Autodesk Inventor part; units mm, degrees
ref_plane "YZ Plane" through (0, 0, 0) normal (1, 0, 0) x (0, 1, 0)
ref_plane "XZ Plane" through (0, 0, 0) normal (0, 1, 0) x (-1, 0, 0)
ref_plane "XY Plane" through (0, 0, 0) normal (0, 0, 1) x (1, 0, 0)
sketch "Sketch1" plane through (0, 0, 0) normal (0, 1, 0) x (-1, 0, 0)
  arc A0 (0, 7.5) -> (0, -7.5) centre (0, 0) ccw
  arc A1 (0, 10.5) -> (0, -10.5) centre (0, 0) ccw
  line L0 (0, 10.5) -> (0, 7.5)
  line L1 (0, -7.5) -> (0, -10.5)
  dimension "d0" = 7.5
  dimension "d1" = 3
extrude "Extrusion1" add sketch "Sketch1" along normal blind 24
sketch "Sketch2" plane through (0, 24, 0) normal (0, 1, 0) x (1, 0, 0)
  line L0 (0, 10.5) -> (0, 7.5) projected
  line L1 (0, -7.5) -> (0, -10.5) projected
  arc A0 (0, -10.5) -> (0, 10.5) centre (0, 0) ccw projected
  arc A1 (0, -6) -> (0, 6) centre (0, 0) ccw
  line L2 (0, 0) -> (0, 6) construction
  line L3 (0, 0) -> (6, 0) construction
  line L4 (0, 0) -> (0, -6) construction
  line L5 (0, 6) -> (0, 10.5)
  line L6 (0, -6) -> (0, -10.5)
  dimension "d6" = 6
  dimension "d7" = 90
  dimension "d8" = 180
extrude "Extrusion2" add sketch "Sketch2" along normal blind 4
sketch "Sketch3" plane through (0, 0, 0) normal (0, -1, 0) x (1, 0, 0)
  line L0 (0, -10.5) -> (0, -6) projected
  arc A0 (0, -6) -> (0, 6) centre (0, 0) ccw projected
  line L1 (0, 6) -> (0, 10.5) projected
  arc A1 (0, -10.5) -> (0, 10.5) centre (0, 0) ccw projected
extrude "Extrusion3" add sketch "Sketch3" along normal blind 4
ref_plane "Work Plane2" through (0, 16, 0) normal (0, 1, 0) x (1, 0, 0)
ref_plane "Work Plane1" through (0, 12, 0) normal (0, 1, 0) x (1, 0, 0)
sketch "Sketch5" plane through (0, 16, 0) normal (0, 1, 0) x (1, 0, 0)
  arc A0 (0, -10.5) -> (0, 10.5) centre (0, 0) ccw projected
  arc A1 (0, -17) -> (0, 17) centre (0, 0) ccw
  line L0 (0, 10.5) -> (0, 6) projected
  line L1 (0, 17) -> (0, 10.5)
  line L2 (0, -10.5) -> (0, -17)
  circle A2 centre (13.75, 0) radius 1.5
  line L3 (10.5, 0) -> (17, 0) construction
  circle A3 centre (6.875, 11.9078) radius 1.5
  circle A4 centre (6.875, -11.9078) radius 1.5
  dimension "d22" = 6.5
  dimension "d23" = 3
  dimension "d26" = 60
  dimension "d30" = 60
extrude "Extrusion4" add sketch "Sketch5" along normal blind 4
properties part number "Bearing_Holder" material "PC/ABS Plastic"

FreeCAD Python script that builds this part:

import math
import FreeCAD as App
import Part
import Sketcher

V = App.Vector
Q = App.Units.Quantity

doc = App.newDocument("Part")
body = doc.addObject("PartDesign::Body", "Body")

# Sketch on XZ plane
sketch1 = body.newObject("Sketcher::SketchObject", "Sketch")
sketch1.AttachmentSupport = (doc.getObject("XZ_Plane"), [""])
sketch1.MapMode = "FlatFace"
sketch1.addGeometry(Part.ArcOfCircle(Part.Circle(V(0, 0, 0), V(0, 0, 1), 7.5), math.radians(-90), math.radians(90)), False)
sketch1.addGeometry(Part.LineSegment(V(0, 7.5, 0), V(0, 10.5, 0)), False)
sketch1.addGeometry(Part.ArcOfCircle(Part.Circle(V(0, 0, 0), V(0, 0, 1), 10.5), math.radians(-90), math.radians(90)), False)
sketch1.addGeometry(Part.LineSegment(V(0, -10.5, 0), V(0, -7.5, 0)), False)
sketch1.addConstraint(Sketcher.Constraint("Coincident", 0, 2, 1, 1))
sketch1.addConstraint(Sketcher.Constraint("Coincident", 1, 2, 2, 2))
sketch1.addConstraint(Sketcher.Constraint("Coincident", 2, 1, 3, 1))
sketch1.addConstraint(Sketcher.Constraint("Coincident", 3, 2, 0, 1))
sketch1.addConstraint(Sketcher.Constraint("Vertical", 1))
sketch1.addConstraint(Sketcher.Constraint("Vertical", 3))
sketch1.addConstraint(Sketcher.Constraint("Coincident", 0, 3, -1, 1))
sketch1.addConstraint(Sketcher.Constraint("Coincident", 2, 3, -1, 1))
sketch1.addConstraint(Sketcher.Constraint("PointOnObject", 0, 2, -2))
sketch1.addConstraint(Sketcher.Constraint("PointOnObject", 2, 1, -2))
sketch1.addConstraint(Sketcher.Constraint("Radius", 0, Q("7.5 mm")))
sketch1.addConstraint(Sketcher.Constraint("DistanceY", 1, 1, 1, 2, Q("3 mm")))
pad1 = body.newObject("PartDesign::Pad", "Pad")
pad1.Profile = sketch1
pad1.Length = 24
pad1.Reversed = True

# Sketch on XZ plane
sketch2 = body.newObject("Sketcher::SketchObject", "Sketch001")
sketch2.AttachmentSupport = (doc.getObject("XZ_Plane"), [""])
sketch2.MapMode = "FlatFace"
sketch2.AttachmentOffset = App.Placement(V(0, 0, -24), App.Rotation())
sketch2.addGeometry(Part.ArcOfCircle(Part.Circle(V(0, 0, 0), V(0, 0, 1), 10.5), math.radians(-90), math.radians(90)), False)
sketch2.addGeometry(Part.LineSegment(V(0, -10.5, 0), V(0, -6, 0)), False)
sketch2.addGeometry(Part.ArcOfCircle(Part.Circle(V(0, 0, 0), V(0, 0, 1), 6), math.radians(-90), math.radians(90)), False)
sketch2.addGeometry(Part.LineSegment(V(0, 6, 0), V(0, 10.5, 0)), False)
sketch2.addConstraint(Sketcher.Constraint("Coincident", 0, 1, 1, 1))
sketch2.addConstraint(Sketcher.Constraint("Coincident", 1, 2, 2, 1))
sketch2.addConstraint(Sketcher.Constraint("Coincident", 2, 2, 3, 1))
sketch2.addConstraint(Sketcher.Constraint("Coincident", 3, 2, 0, 2))
sketch2.addConstraint(Sketcher.Constraint("Vertical", 1))
sketch2.addConstraint(Sketcher.Constraint("Vertical", 3))
sketch2.addConstraint(Sketcher.Constraint("Coincident", 0, 3, -1, 1))
sketch2.addConstraint(Sketcher.Constraint("Coincident", 2, 3, -1, 1))
sketch2.addConstraint(Sketcher.Constraint("PointOnObject", 0, 1, -2))
sketch2.addConstraint(Sketcher.Constraint("PointOnObject", 2, 2, -2))
sketch2.addConstraint(Sketcher.Constraint("Radius", 2, Q("6 mm")))
sketch2.addConstraint(Sketcher.Constraint("Radius", 0, Q("10.5 mm")))
pad2 = body.newObject("PartDesign::Pad", "Pad001")
pad2.Profile = sketch2
pad2.Length = 4
pad2.Reversed = True

# Sketch on XZ plane
sketch3 = body.newObject("Sketcher::SketchObject", "Sketch002")
sketch3.AttachmentSupport = (doc.getObject("XZ_Plane"), [""])
sketch3.MapMode = "FlatFace"
sketch3.addGeometry(Part.LineSegment(V(0, -6, 0), V(0, -10.5, 0)), False)
sketch3.addGeometry(Part.ArcOfCircle(Part.Circle(V(0, 0, 0), V(0, 0, 1), 10.5), math.radians(-90), math.radians(90)), False)
sketch3.addGeometry(Part.LineSegment(V(0, 10.5, 0), V(0, 6, 0)), False)
sketch3.addGeometry(Part.ArcOfCircle(Part.Circle(V(0, 0, 0), V(0, 0, 1), 6), math.radians(-90), math.radians(90)), False)
sketch3.addConstraint(Sketcher.Constraint("Coincident", 0, 2, 1, 1))
sketch3.addConstraint(Sketcher.Constraint("Coincident", 1, 2, 2, 1))
sketch3.addConstraint(Sketcher.Constraint("Coincident", 2, 2, 3, 2))
sketch3.addConstraint(Sketcher.Constraint("Coincident", 3, 1, 0, 1))
sketch3.addConstraint(Sketcher.Constraint("Vertical", 0))
sketch3.addConstraint(Sketcher.Constraint("Vertical", 2))
sketch3.addConstraint(Sketcher.Constraint("Coincident", 1, 3, -1, 1))
sketch3.addConstraint(Sketcher.Constraint("Coincident", 3, 3, -1, 1))
sketch3.addConstraint(Sketcher.Constraint("PointOnObject", 0, 2, -2))
sketch3.addConstraint(Sketcher.Constraint("PointOnObject", 1, 2, -2))
sketch3.addConstraint(Sketcher.Constraint("Radius", 3, Q("6 mm")))
sketch3.addConstraint(Sketcher.Constraint("Radius", 1, Q("10.5 mm")))
pad3 = body.newObject("PartDesign::Pad", "Pad002")
pad3.Profile = sketch3
pad3.Length = 4

# Sketch on XZ plane
sketch4 = body.newObject("Sketcher::SketchObject", "Sketch003")
sketch4.AttachmentSupport = (doc.getObject("XZ_Plane"), [""])
sketch4.MapMode = "FlatFace"
sketch4.AttachmentOffset = App.Placement(V(0, 0, -16), App.Rotation())
sketch4.addGeometry(Part.ArcOfCircle(Part.Circle(V(0, 0, 0), V(0, 0, 1), 10.5), math.radians(-90), math.radians(90)), False)
sketch4.addGeometry(Part.LineSegment(V(0, 10.5, 0), V(0, 17, 0)), False)
sketch4.addGeometry(Part.ArcOfCircle(Part.Circle(V(0, 0, 0), V(0, 0, 1), 17), math.radians(-90), math.radians(90)), False)
sketch4.addGeometry(Part.LineSegment(V(0, -17, 0), V(0, -10.5, 0)), False)
sketch4.addGeometry(Part.Circle(V(6.9, 11.9, 0), V(0, 0, 1), 1.5), False)
sketch4.addGeometry(Part.Circle(V(6.9, -11.9, 0), V(0, 0, 1), 1.5), False)
sketch4.addGeometry(Part.Circle(V(13.8, 0, 0), V(0, 0, 1), 1.5), False)
sketch4.addConstraint(Sketcher.Constraint("Coincident", 0, 2, 1, 1))
sketch4.addConstraint(Sketcher.Constraint("Coincident", 1, 2, 2, 2))
sketch4.addConstraint(Sketcher.Constraint("Coincident", 2, 1, 3, 1))
sketch4.addConstraint(Sketcher.Constraint("Coincident", 3, 2, 0, 1))
sketch4.addConstraint(Sketcher.Constraint("Vertical", 1))
sketch4.addConstraint(Sketcher.Constraint("Vertical", 3))
sketch4.addConstraint(Sketcher.Constraint("Coincident", 0, 3, -1, 1))
sketch4.addConstraint(Sketcher.Constraint("Coincident", 2, 3, -1, 1))
sketch4.addConstraint(Sketcher.Constraint("Equal", 4, 5))
sketch4.addConstraint(Sketcher.Constraint("Equal", 5, 6))
sketch4.addConstraint(Sketcher.Constraint("Symmetric", 4, 3, 5, 3, -1))
sketch4.addConstraint(Sketcher.Constraint("PointOnObject", 6, 3, -1))
sketch4.addConstraint(Sketcher.Constraint("PointOnObject", 0, 2, -2))
sketch4.addConstraint(Sketcher.Constraint("PointOnObject", 2, 1, -2))
sketch4.addConstraint(Sketcher.Constraint("Diameter", 4, Q("3 mm")))
sketch4.addConstraint(Sketcher.Constraint("DistanceY", 1, 1, 1, 2, Q("6.5 mm")))
sketch4.addConstraint(Sketcher.Constraint("Radius", 2, Q("17 mm")))
sketch4.addConstraint(Sketcher.Constraint("DistanceX", -1, 1, 6, 3, Q("13.75 mm")))
sketch4.addConstraint(Sketcher.Constraint("DistanceX", -1, 1, 4, 3, Q("6.875 mm")))
sketch4.addConstraint(Sketcher.Constraint("DistanceY", -1, 1, 4, 3, Q("11.9078 mm")))
pad4 = body.newObject("PartDesign::Pad", "Pad003")
pad4.Profile = sketch4
pad4.Length = 4
pad4.Reversed = True

doc.recompute()
